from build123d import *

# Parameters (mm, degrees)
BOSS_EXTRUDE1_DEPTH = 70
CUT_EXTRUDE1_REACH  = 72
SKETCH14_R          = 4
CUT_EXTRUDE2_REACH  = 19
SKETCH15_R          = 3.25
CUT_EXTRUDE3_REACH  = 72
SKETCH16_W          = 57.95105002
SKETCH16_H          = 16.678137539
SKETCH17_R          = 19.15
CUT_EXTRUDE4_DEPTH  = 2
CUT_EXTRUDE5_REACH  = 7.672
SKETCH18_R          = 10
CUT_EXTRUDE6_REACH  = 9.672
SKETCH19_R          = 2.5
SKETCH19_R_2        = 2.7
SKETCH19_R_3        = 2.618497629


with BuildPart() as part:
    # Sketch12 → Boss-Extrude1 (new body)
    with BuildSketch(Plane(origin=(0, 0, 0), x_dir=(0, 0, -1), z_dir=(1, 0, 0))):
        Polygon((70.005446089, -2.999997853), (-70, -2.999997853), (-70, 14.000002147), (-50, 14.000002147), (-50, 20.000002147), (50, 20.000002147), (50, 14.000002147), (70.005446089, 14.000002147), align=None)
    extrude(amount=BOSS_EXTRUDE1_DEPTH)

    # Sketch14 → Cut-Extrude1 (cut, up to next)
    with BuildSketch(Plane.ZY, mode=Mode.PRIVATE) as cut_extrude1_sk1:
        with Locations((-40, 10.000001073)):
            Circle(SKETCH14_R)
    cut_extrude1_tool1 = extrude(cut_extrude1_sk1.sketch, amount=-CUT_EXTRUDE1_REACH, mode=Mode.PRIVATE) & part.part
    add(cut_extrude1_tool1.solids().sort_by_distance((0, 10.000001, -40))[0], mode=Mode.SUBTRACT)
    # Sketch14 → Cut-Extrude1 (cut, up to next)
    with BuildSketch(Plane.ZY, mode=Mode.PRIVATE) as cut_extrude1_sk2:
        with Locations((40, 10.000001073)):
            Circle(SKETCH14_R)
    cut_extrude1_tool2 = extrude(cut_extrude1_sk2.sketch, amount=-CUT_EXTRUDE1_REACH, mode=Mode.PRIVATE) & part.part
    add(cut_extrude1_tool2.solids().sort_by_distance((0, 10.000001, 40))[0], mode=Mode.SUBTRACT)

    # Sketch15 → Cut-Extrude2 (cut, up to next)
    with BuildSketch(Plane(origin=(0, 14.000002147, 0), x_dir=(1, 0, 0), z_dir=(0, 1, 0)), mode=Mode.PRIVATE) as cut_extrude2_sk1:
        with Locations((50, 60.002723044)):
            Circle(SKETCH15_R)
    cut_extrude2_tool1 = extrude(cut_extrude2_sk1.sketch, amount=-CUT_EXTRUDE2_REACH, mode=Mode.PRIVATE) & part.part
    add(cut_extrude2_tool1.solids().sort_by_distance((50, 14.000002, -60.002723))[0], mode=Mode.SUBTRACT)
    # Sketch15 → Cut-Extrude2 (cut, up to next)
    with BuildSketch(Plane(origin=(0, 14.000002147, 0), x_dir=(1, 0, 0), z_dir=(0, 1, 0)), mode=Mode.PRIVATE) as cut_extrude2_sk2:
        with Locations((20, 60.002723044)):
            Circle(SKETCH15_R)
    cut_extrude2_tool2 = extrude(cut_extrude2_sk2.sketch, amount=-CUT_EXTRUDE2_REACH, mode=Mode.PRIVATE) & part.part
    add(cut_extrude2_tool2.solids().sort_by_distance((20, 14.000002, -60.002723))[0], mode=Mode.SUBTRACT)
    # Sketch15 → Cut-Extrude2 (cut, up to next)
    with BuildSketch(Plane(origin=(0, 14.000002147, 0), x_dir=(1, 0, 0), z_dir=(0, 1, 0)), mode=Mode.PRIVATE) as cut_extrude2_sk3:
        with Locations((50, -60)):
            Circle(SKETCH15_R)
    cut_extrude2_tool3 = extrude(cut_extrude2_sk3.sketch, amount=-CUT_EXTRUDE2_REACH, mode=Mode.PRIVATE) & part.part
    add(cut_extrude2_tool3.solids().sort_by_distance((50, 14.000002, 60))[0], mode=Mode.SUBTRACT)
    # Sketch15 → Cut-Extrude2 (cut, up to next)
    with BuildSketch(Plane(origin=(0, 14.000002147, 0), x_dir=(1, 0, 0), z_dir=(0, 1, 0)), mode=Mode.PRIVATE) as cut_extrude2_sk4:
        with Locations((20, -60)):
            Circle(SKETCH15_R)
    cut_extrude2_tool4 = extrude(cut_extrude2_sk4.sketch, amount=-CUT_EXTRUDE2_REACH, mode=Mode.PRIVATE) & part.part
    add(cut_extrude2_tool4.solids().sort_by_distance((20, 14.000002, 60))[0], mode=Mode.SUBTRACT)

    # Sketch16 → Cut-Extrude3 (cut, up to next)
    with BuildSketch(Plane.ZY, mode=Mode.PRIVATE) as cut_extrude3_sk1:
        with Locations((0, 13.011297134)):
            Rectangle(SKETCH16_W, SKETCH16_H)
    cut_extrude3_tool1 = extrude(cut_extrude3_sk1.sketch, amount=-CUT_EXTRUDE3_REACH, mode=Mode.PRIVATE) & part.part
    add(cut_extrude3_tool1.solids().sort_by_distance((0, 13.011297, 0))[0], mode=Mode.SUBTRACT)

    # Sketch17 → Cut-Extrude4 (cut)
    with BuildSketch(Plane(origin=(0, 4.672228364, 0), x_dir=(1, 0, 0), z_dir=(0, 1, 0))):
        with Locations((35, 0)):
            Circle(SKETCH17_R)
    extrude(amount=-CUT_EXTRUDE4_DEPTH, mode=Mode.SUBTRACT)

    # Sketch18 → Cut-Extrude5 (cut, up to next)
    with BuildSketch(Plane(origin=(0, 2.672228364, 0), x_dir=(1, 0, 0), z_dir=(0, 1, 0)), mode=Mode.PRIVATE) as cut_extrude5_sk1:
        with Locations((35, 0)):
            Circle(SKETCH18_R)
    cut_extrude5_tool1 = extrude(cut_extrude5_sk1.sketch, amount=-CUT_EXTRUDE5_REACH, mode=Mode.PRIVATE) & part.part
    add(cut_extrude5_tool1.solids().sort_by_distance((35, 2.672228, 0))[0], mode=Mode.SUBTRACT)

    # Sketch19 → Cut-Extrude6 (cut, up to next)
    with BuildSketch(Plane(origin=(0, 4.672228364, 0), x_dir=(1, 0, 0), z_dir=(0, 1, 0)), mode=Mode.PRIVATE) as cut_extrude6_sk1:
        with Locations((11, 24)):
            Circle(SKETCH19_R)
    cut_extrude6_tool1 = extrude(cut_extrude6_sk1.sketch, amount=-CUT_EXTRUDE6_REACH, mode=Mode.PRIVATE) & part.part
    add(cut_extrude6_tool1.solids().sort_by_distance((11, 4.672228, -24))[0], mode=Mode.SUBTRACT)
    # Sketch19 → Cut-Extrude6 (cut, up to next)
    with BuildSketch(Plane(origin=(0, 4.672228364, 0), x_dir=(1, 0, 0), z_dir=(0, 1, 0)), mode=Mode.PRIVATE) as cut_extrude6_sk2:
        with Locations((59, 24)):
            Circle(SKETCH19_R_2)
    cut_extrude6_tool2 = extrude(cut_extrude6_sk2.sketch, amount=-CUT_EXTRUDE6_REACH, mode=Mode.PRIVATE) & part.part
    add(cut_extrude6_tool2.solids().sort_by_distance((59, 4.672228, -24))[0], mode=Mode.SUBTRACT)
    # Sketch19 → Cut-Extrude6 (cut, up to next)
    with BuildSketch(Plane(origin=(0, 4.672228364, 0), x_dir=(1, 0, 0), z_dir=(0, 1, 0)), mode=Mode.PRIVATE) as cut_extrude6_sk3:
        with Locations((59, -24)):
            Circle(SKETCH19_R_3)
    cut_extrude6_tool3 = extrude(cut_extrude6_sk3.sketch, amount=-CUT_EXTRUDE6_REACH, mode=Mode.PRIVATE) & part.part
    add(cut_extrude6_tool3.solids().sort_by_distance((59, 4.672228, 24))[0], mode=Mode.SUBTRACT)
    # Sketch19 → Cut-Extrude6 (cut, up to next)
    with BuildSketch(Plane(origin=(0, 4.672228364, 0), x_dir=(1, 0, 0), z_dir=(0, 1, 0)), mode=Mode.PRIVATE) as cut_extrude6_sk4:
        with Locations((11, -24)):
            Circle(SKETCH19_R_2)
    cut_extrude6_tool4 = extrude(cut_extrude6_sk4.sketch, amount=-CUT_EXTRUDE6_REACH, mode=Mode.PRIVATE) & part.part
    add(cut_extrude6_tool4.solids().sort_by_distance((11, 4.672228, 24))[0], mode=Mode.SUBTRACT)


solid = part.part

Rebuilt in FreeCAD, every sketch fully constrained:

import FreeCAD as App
import Part
import Sketcher
from FreeCAD import Vector

doc = App.newDocument("Part")
body = doc.addObject("PartDesign::Body", "Body")

sketch1 = body.newObject("Sketcher::SketchObject", "Sketch")
sketch1.AttachmentSupport = (doc.getObject("YZ_Plane"), [""])
sketch1.MapMode = "FlatFace"
sketch1.addGeometry([
    Part.LineSegment(Vector(-3, 70, 0), Vector(-3, -70, 0)),
    Part.LineSegment(Vector(-3, -70, 0), Vector(14, -70, 0)),
    Part.LineSegment(Vector(14, -70, 0), Vector(14, -50, 0)),
    Part.LineSegment(Vector(14, -50, 0), Vector(20, -50, 0)),
    Part.LineSegment(Vector(20, -50, 0), Vector(20, 50, 0)),
    Part.LineSegment(Vector(20, 50, 0), Vector(14, 50, 0)),
    Part.LineSegment(Vector(14, 50, 0), Vector(14, 70, 0)),
    Part.LineSegment(Vector(14, 70, 0), Vector(-3, 70, 0)),
], False)
sketch1.addConstraint([
    Sketcher.Constraint("Coincident", 0, 2, 1, 1),
    Sketcher.Constraint("Coincident", 1, 2, 2, 1),
    Sketcher.Constraint("Coincident", 2, 2, 3, 1),
    Sketcher.Constraint("Coincident", 3, 2, 4, 1),
    Sketcher.Constraint("Coincident", 4, 2, 5, 1),
    Sketcher.Constraint("Coincident", 5, 2, 6, 1),
    Sketcher.Constraint("Coincident", 6, 2, 7, 1),
    Sketcher.Constraint("Coincident", 7, 2, 0, 1),
    Sketcher.Constraint("Vertical", 0),
    Sketcher.Constraint("Horizontal", 1),
    Sketcher.Constraint("Vertical", 2),
    Sketcher.Constraint("Horizontal", 3),
    Sketcher.Constraint("Vertical", 4),
    Sketcher.Constraint("Horizontal", 5),
    Sketcher.Constraint("Vertical", 6),
    Sketcher.Constraint("Horizontal", 7),
    Sketcher.Constraint("Symmetric", 2, 2, 5, 2, -1),
    Sketcher.Constraint("DistanceX", 1, 1, 1, 2, 17.0),
    Sketcher.Constraint("DistanceX", 3, 1, 3, 2, 6.0),
    Sketcher.Constraint("DistanceY", 4, 1, 4, 2, 100.0),
    Sketcher.Constraint("DistanceY", 6, 1, 6, 2, 20.0),
    Sketcher.Constraint("DistanceY", 0, 2, 0, 1, 140.005446),
    Sketcher.Constraint("DistanceX", 0, 2, -1, 1, 2.999998),
])
pad1 = body.newObject("PartDesign::Pad", "Pad")
pad1.Profile = sketch1
pad1.Length = 70

sketch2 = body.newObject("Sketcher::SketchObject", "Sketch001")
sketch2.AttachmentSupport = (doc.getObject("YZ_Plane"), [""])
sketch2.MapMode = "FlatFace"
sketch2.addGeometry(Part.Circle(Vector(10, -40, 0), Vector(0, 0, 1), 4), False)
sketch2.addConstraint([
    Sketcher.Constraint("Diameter", 0, 8.0),
    Sketcher.Constraint("DistanceX", -1, 1, 0, 3, 10.000001),
    Sketcher.Constraint("DistanceY", 0, 3, -1, 1, 40.0),
])
pocket1 = body.newObject("PartDesign::Pocket", "Pocket")
pocket1.Profile = sketch2
pocket1.Type = "UpToFirst"
pocket1.Reversed = True

sketch3 = body.newObject("Sketcher::SketchObject", "Sketch002")
sketch3.AttachmentSupport = (doc.getObject("YZ_Plane"), [""])
sketch3.MapMode = "FlatFace"
sketch3.addGeometry(Part.Circle(Vector(10, 40, 0), Vector(0, 0, 1), 4), False)
sketch3.addConstraint([
    Sketcher.Constraint("Diameter", 0, 8.0),
    Sketcher.Constraint("DistanceX", -1, 1, 0, 3, 10.000001),
    Sketcher.Constraint("DistanceY", -1, 1, 0, 3, 40.0),
])
pocket2 = body.newObject("PartDesign::Pocket", "Pocket001")
pocket2.Profile = sketch3
pocket2.Type = "UpToFirst"
pocket2.Reversed = True

sketch4 = body.newObject("Sketcher::SketchObject", "Sketch003")
sketch4.AttachmentSupport = (doc.getObject("XZ_Plane"), [""])
sketch4.MapMode = "FlatFace"
sketch4.AttachmentOffset = App.Placement(Vector(0, 0, -14.000002), App.Rotation())
sketch4.addGeometry(Part.Circle(Vector(50, -60, 0), Vector(0, 0, 1), 3.2), False)
sketch4.addConstraint([
    Sketcher.Constraint("Diameter", 0, 6.5),
    Sketcher.Constraint("DistanceX", -1, 1, 0, 3, 50.0),
    Sketcher.Constraint("DistanceY", 0, 3, -1, 1, 60.002723),
])
pocket3 = body.newObject("PartDesign::Pocket", "Pocket002")
pocket3.Profile = sketch4
pocket3.Type = "UpToFirst"
pocket3.Reversed = True

sketch5 = body.newObject("Sketcher::SketchObject", "Sketch004")
sketch5.AttachmentSupport = (doc.getObject("XZ_Plane"), [""])
sketch5.MapMode = "FlatFace"
sketch5.AttachmentOffset = App.Placement(Vector(0, 0, -14.000002), App.Rotation())
sketch5.addGeometry(Part.Circle(Vector(20, -60, 0), Vector(0, 0, 1), 3.2), False)
sketch5.addConstraint([
    Sketcher.Constraint("Diameter", 0, 6.5),
    Sketcher.Constraint("DistanceX", -1, 1, 0, 3, 20.0),
    Sketcher.Constraint("DistanceY", 0, 3, -1, 1, 60.002723),
])
pocket4 = body.newObject("PartDesign::Pocket", "Pocket003")
pocket4.Profile = sketch5
pocket4.Type = "UpToFirst"
pocket4.Reversed = True

sketch6 = body.newObject("Sketcher::SketchObject", "Sketch005")
sketch6.AttachmentSupport = (doc.getObject("XZ_Plane"), [""])
sketch6.MapMode = "FlatFace"
sketch6.AttachmentOffset = App.Placement(Vector(0, 0, -14.000002), App.Rotation())
sketch6.addGeometry(Part.Circle(Vector(50, 60, 0), Vector(0, 0, 1), 3.2), False)
sketch6.addConstraint([
    Sketcher.Constraint("Diameter", 0, 6.5),
    Sketcher.Constraint("DistanceX", -1, 1, 0, 3, 50.0),
    Sketcher.Constraint("DistanceY", -1, 1, 0, 3, 60.0),
])
pocket5 = body.newObject("PartDesign::Pocket", "Pocket004")
pocket5.Profile = sketch6
pocket5.Type = "UpToFirst"
pocket5.Reversed = True

sketch7 = body.newObject("Sketcher::SketchObject", "Sketch006")
sketch7.AttachmentSupport = (doc.getObject("XZ_Plane"), [""])
sketch7.MapMode = "FlatFace"
sketch7.AttachmentOffset = App.Placement(Vector(0, 0, -14.000002), App.Rotation())
sketch7.addGeometry(Part.Circle(Vector(20, 60, 0), Vector(0, 0, 1), 3.2), False)
sketch7.addConstraint([
    Sketcher.Constraint("Diameter", 0, 6.5),
    Sketcher.Constraint("DistanceX", -1, 1, 0, 3, 20.0),
    Sketcher.Constraint("DistanceY", -1, 1, 0, 3, 60.0),
])
pocket6 = body.newObject("PartDesign::Pocket", "Pocket005")
pocket6.Profile = sketch7
pocket6.Type = "UpToFirst"
pocket6.Reversed = True

sketch8 = body.newObject("Sketcher::SketchObject", "Sketch007")
sketch8.AttachmentSupport = (doc.getObject("YZ_Plane"), [""])
sketch8.MapMode = "FlatFace"
sketch8.addGeometry([
    Part.LineSegment(Vector(21, -29, 0), Vector(5, -29, 0)),
    Part.LineSegment(Vector(5, -29, 0), Vector(5, 29, 0)),
    Part.LineSegment(Vector(5, 29, 0), Vector(21, 29, 0)),
    Part.LineSegment(Vector(21, 29, 0), Vector(21, -29, 0)),
], False)
sketch8.addConstraint([
    Sketcher.Constraint("Coincident", 0, 2, 1, 1),
    Sketcher.Constraint("Coincident", 1, 2, 2, 1),
    Sketcher.Constraint("Coincident", 2, 2, 3, 1),
    Sketcher.Constraint("Coincident", 3, 2, 0, 1),
    Sketcher.Constraint("Horizontal", 0),
    Sketcher.Constraint("Vertical", 1),
    Sketcher.Constraint("Horizontal", 2),
    Sketcher.Constraint("Vertical", 3),
    Sketcher.Constraint("DistanceY", 1, 1, 1, 2, 57.95105),
    Sketcher.Constraint("DistanceX", 0, 2, 0, 1, 16.678138),
    Sketcher.Constraint("DistanceX", -1, 1, 0, 2, 4.672228),
    Sketcher.Constraint("DistanceY", 0, 2, -1, 1, 28.975525),
])
pocket7 = body.newObject("PartDesign::Pocket", "Pocket006")
pocket7.Profile = sketch8
pocket7.Type = "UpToFirst"
pocket7.Reversed = True

sketch9 = body.newObject("Sketcher::SketchObject", "Sketch008")
sketch9.AttachmentSupport = (doc.getObject("XZ_Plane"), [""])
sketch9.MapMode = "FlatFace"
sketch9.AttachmentOffset = App.Placement(Vector(0, 0, -4.672228), App.Rotation())
sketch9.addGeometry(Part.Circle(Vector(35, 0, 0), Vector(0, 0, 1), 19), False)
sketch9.addConstraint([
    Sketcher.Constraint("PointOnObject", 0, 3, -1),
    Sketcher.Constraint("Diameter", 0, 38.3),
    Sketcher.Constraint("DistanceX", -1, 1, 0, 3, 35.0),
])
pocket8 = body.newObject("PartDesign::Pocket", "Pocket007")
pocket8.Profile = sketch9
pocket8.Length = 2
pocket8.Reversed = True

sketch10 = body.newObject("Sketcher::SketchObject", "Sketch009")
sketch10.AttachmentSupport = (doc.getObject("XZ_Plane"), [""])
sketch10.MapMode = "FlatFace"
sketch10.AttachmentOffset = App.Placement(Vector(0, 0, -2.672228), App.Rotation())
sketch10.addGeometry(Part.Circle(Vector(35, 0, 0), Vector(0, 0, 1), 10), False)
sketch10.addConstraint([
    Sketcher.Constraint("PointOnObject", 0, 3, -1),
    Sketcher.Constraint("Diameter", 0, 20.0),
    Sketcher.Constraint("DistanceX", -1, 1, 0, 3, 35.0),
])
pocket9 = body.newObject("PartDesign::Pocket", "Pocket008")
pocket9.Profile = sketch10
pocket9.Type = "UpToFirst"
pocket9.Reversed = True

sketch11 = body.newObject("Sketcher::SketchObject", "Sketch010")
sketch11.AttachmentSupport = (doc.getObject("XZ_Plane"), [""])
sketch11.MapMode = "FlatFace"
sketch11.AttachmentOffset = App.Placement(Vector(0, 0, -4.672228), App.Rotation())
sketch11.addGeometry(Part.Circle(Vector(11, -24, 0), Vector(0, 0, 1), 2.5), False)
sketch11.addConstraint([
    Sketcher.Constraint("Diameter", 0, 5.0),
    Sketcher.Constraint("DistanceX", -1, 1, 0, 3, 11.0),
    Sketcher.Constraint("DistanceY", 0, 3, -1, 1, 24.0),
])
pocket10 = body.newObject("PartDesign::Pocket", "Pocket009")
pocket10.Profile = sketch11
pocket10.Type = "UpToFirst"
pocket10.Reversed = True

sketch12 = body.newObject("Sketcher::SketchObject", "Sketch011")
sketch12.AttachmentSupport = (doc.getObject("XZ_Plane"), [""])
sketch12.MapMode = "FlatFace"
sketch12.AttachmentOffset = App.Placement(Vector(0, 0, -4.672228), App.Rotation())
sketch12.addGeometry(Part.Circle(Vector(59, -24, 0), Vector(0, 0, 1), 2.7), False)
sketch12.addConstraint([
    Sketcher.Constraint("Diameter", 0, 5.4),
    Sketcher.Constraint("DistanceX", -1, 1, 0, 3, 59.0),
    Sketcher.Constraint("DistanceY", 0, 3, -1, 1, 24.0),
])
pocket11 = body.newObject("PartDesign::Pocket", "Pocket010")
pocket11.Profile = sketch12
pocket11.Type = "UpToFirst"
pocket11.Reversed = True

sketch13 = body.newObject("Sketcher::SketchObject", "Sketch012")
sketch13.AttachmentSupport = (doc.getObject("XZ_Plane"), [""])
sketch13.MapMode = "FlatFace"
sketch13.AttachmentOffset = App.Placement(Vector(0, 0, -4.672228), App.Rotation())
sketch13.addGeometry(Part.Circle(Vector(59, 24, 0), Vector(0, 0, 1), 2.6), False)
sketch13.addConstraint([
    Sketcher.Constraint("DistanceX", -1, 1, 0, 3, 59.0),
    Sketcher.Constraint("DistanceY", -1, 1, 0, 3, 24.0),
    Sketcher.Constraint("Diameter", 0, 5.236995),
])
pocket12 = body.newObject("PartDesign::Pocket", "Pocket011")
pocket12.Profile = sketch13
pocket12.Type = "UpToFirst"
pocket12.Reversed = True

sketch14 = body.newObject("Sketcher::SketchObject", "Sketch013")
sketch14.AttachmentSupport = (doc.getObject("XZ_Plane"), [""])
sketch14.MapMode = "FlatFace"
sketch14.AttachmentOffset = App.Placement(Vector(0, 0, -4.672228), App.Rotation())
sketch14.addGeometry(Part.Circle(Vector(11, 24, 0), Vector(0, 0, 1), 2.7), False)
sketch14.addConstraint([
    Sketcher.Constraint("Diameter", 0, 5.4),
    Sketcher.Constraint("DistanceX", -1, 1, 0, 3, 11.0),
    Sketcher.Constraint("DistanceY", -1, 1, 0, 3, 24.0),
])
pocket13 = body.newObject("PartDesign::Pocket", "Pocket012")
pocket13.Profile = sketch14
pocket13.Type = "UpToFirst"
pocket13.Reversed = True

doc.recompute()
